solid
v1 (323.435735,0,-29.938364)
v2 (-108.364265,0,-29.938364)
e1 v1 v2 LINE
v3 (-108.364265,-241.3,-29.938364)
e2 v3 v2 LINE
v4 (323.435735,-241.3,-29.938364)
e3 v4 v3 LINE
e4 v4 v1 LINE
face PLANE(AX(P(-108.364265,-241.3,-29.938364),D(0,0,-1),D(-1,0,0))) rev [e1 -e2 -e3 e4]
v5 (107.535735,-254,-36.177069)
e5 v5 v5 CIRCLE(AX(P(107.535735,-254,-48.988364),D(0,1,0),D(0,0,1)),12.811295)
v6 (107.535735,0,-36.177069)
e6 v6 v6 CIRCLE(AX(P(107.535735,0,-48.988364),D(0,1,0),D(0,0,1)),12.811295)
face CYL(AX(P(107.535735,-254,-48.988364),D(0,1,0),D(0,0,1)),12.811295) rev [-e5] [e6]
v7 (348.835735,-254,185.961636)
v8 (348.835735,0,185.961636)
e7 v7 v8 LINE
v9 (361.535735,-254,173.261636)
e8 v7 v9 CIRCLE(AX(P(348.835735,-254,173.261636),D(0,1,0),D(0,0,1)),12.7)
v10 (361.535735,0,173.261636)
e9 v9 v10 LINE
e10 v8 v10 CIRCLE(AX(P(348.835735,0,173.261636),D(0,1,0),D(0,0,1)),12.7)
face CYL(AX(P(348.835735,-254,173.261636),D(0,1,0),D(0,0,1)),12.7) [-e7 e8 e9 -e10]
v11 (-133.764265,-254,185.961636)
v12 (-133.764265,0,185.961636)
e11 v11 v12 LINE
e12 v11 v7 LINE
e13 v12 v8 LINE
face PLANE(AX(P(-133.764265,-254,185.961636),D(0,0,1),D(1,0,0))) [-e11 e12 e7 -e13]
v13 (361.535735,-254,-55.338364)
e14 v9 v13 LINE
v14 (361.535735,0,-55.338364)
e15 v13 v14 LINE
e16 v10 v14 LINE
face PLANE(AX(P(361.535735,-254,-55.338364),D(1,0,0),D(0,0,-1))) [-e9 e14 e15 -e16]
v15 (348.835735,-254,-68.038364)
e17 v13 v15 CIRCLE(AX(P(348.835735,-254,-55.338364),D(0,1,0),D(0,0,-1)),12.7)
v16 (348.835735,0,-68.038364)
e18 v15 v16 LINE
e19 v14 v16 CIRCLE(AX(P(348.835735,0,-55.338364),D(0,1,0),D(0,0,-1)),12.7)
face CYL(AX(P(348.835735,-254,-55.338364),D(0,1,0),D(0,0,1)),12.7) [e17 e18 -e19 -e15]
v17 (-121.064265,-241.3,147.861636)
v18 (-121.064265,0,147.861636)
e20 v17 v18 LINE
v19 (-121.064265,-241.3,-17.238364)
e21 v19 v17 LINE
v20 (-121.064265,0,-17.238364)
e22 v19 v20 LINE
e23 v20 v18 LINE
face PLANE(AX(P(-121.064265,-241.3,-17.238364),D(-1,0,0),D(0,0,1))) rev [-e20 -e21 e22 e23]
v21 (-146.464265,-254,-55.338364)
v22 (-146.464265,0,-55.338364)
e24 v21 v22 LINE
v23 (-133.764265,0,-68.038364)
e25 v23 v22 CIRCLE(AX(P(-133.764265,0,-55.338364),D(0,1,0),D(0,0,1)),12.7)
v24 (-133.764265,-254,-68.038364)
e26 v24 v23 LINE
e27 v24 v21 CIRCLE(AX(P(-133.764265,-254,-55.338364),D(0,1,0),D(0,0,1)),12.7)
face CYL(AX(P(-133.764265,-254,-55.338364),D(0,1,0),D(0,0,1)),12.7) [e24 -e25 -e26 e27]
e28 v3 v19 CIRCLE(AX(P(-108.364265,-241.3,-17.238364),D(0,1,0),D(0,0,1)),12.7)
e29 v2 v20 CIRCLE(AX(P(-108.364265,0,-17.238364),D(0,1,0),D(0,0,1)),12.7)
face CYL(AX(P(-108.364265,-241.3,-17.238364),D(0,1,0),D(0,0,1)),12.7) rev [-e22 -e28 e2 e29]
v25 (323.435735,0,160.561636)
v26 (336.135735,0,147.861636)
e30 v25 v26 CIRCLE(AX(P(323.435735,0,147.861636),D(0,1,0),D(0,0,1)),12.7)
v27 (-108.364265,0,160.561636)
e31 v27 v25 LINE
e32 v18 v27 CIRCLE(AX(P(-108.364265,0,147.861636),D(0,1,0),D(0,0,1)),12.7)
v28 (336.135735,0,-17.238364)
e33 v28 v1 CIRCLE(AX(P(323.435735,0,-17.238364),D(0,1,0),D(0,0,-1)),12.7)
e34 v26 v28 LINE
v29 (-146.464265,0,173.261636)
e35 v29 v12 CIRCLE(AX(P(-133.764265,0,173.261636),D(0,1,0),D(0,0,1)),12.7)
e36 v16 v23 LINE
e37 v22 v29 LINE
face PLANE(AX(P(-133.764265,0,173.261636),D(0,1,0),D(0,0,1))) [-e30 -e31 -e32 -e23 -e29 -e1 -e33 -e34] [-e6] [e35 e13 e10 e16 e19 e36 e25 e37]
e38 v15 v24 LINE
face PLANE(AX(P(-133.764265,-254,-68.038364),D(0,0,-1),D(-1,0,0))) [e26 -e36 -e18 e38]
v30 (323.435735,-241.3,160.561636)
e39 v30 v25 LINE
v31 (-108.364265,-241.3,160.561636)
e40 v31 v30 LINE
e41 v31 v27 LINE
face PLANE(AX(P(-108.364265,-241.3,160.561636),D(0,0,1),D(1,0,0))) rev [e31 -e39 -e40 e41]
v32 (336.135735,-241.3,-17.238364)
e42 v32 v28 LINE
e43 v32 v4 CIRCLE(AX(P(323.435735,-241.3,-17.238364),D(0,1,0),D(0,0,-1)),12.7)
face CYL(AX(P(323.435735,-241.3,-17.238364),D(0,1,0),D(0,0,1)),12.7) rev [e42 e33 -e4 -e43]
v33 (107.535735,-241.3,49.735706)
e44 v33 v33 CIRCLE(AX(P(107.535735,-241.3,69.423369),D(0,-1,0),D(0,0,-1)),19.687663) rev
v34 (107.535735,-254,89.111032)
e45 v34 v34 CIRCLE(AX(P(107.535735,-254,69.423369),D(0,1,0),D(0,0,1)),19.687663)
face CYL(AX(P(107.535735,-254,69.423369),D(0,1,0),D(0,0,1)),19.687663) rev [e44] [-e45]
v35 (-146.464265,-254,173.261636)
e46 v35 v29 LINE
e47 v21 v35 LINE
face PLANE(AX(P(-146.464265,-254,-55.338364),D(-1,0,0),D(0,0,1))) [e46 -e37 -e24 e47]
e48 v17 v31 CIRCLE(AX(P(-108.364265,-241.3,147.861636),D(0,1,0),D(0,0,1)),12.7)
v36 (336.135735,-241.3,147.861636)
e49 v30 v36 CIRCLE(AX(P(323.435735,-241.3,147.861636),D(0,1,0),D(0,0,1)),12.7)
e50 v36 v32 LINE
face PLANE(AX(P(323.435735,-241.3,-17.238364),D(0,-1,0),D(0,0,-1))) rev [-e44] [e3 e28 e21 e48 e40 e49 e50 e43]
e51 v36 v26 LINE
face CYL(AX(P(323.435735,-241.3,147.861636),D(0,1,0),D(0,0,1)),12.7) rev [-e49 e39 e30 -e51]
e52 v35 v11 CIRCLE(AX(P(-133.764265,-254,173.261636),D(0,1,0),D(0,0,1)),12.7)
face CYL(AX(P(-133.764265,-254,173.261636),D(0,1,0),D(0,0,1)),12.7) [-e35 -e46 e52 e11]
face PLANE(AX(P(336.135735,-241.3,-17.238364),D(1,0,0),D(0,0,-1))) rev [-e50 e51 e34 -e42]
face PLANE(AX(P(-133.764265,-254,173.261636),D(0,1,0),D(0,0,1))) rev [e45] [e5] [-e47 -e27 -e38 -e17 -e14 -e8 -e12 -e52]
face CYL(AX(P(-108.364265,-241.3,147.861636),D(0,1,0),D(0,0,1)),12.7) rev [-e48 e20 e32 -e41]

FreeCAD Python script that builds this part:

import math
import FreeCAD as App
import Part
import Sketcher
Q = App.Units.Quantity

doc = App.newDocument("Part")
body = doc.addObject("PartDesign::Body", "Body")

sketch1 = body.newObject("Sketcher::SketchObject", "Sketch")
sketch1.AttachmentSupport = (doc.getObject("XZ_Plane"), [""])
sketch1.MapMode = "FlatFace"
sketch1.addGeometry(Part.LineSegment(App.Vector(349, -68, 0), App.Vector(-134, -68, 0)), False)
sketch1.addGeometry(Part.ArcOfCircle(Part.Circle(App.Vector(-134, -55, 0), App.Vector(0, 0, 1), 13), math.radians(180), math.radians(270)), False)
sketch1.addGeometry(Part.LineSegment(App.Vector(-146, -55, 0), App.Vector(-146, 173, 0)), False)
sketch1.addGeometry(Part.ArcOfCircle(Part.Circle(App.Vector(-134, 173, 0), App.Vector(0, 0, 1), 13), math.radians(90), math.radians(180)), False)
sketch1.addGeometry(Part.LineSegment(App.Vector(-134, 186, 0), App.Vector(349, 186, 0)), False)
sketch1.addGeometry(Part.ArcOfCircle(Part.Circle(App.Vector(349, 173, 0), App.Vector(0, 0, 1), 13), math.radians(0), math.radians(90)), False)
sketch1.addGeometry(Part.LineSegment(App.Vector(362, 173, 0), App.Vector(362, -55, 0)), False)
sketch1.addGeometry(Part.ArcOfCircle(Part.Circle(App.Vector(349, -55, 0), App.Vector(0, 0, 1), 13), math.radians(-90), math.radians(0)), False)
sketch1.addGeometry(Part.Circle(App.Vector(108, 69, 0), App.Vector(0, 0, 1), 20), False)
sketch1.addGeometry(Part.Circle(App.Vector(108, -49, 0), App.Vector(0, 0, 1), 13), False)
sketch1.addConstraint(Sketcher.Constraint("Tangent", 0, 2, 1, 2))
sketch1.addConstraint(Sketcher.Constraint("Tangent", 1, 1, 2, 1))
sketch1.addConstraint(Sketcher.Constraint("Tangent", 2, 2, 3, 2))
sketch1.addConstraint(Sketcher.Constraint("Tangent", 3, 1, 4, 1))
sketch1.addConstraint(Sketcher.Constraint("Tangent", 4, 2, 5, 2))
sketch1.addConstraint(Sketcher.Constraint("Tangent", 5, 1, 6, 1))
sketch1.addConstraint(Sketcher.Constraint("Tangent", 6, 2, 7, 2))
sketch1.addConstraint(Sketcher.Constraint("Tangent", 7, 1, 0, 1))
sketch1.addConstraint(Sketcher.Constraint("Horizontal", 0))
sketch1.addConstraint(Sketcher.Constraint("Vertical", 2))
sketch1.addConstraint(Sketcher.Constraint("Horizontal", 4))
sketch1.addConstraint(Sketcher.Constraint("Vertical", 6))
sketch1.addConstraint(Sketcher.Constraint("Equal", 1, 3))
sketch1.addConstraint(Sketcher.Constraint("Equal", 3, 5))
sketch1.addConstraint(Sketcher.Constraint("Equal", 5, 7))
sketch1.addConstraint(Sketcher.Constraint("Vertical", 8, 3, 9, 3))
sketch1.addConstraint(Sketcher.Constraint("Radius", 1, Q("0.5 in")))
sketch1.addConstraint(Sketcher.Constraint("DistanceX", 0, 2, 0, 1, Q("19 in")))
sketch1.addConstraint(Sketcher.Constraint("DistanceY", 2, 1, 2, 2, Q("9 in")))
sketch1.addConstraint(Sketcher.Constraint("DistanceX", 1, 1, 9, 3, Q("10 in")))
sketch1.addConstraint(Sketcher.Constraint("DistanceY", 1, 3, 9, 3, Q("0.25 in")))
sketch1.addConstraint(Sketcher.Constraint("Diameter", 9, 25.62259))
sketch1.addConstraint(Sketcher.Constraint("Diameter", 8, 39.375325))
sketch1.addConstraint(Sketcher.Constraint("DistanceY", -1, 1, 8, 3, 69.423369))
sketch1.addConstraint(Sketcher.Constraint("DistanceX", 1, 3, -1, 1, 133.764265))
sketch1.addConstraint(Sketcher.Constraint("DistanceY", 1, 3, -1, 1, 55.338364))
pad1 = body.newObject("PartDesign::Pad", "Pad")
pad1.Profile = sketch1
pad1.Length = Q("10 in")

sketch2 = body.newObject("Sketcher::SketchObject", "Sketch001")
sketch2.AttachmentSupport = (doc.getObject("XZ_Plane"), [""])
sketch2.MapMode = "FlatFace"
sketch2.addGeometry(Part.LineSegment(App.Vector(323, -30, 0), App.Vector(-108, -30, 0)), False)
sketch2.addGeometry(Part.ArcOfCircle(Part.Circle(App.Vector(-108, -17, 0), App.Vector(0, 0, 1), 13), math.radians(180), math.radians(270)), False)
sketch2.addGeometry(Part.LineSegment(App.Vector(-121, -17, 0), App.Vector(-121, 148, 0)), False)
sketch2.addGeometry(Part.ArcOfCircle(Part.Circle(App.Vector(-108, 148, 0), App.Vector(0, 0, 1), 13), math.radians(90), math.radians(180)), False)
sketch2.addGeometry(Part.LineSegment(App.Vector(-108, 161, 0), App.Vector(323, 161, 0)), False)
sketch2.addGeometry(Part.ArcOfCircle(Part.Circle(App.Vector(323, 148, 0), App.Vector(0, 0, 1), 13), math.radians(0), math.radians(90)), False)
sketch2.addGeometry(Part.LineSegment(App.Vector(336, 148, 0), App.Vector(336, -17, 0)), False)
sketch2.addGeometry(Part.ArcOfCircle(Part.Circle(App.Vector(323, -17, 0), App.Vector(0, 0, 1), 13), math.radians(-90), math.radians(0)), False)
sketch2.addConstraint(Sketcher.Constraint("Tangent", 0, 2, 1, 2))
sketch2.addConstraint(Sketcher.Constraint("Tangent", 1, 1, 2, 1))
sketch2.addConstraint(Sketcher.Constraint("Tangent", 2, 2, 3, 2))
sketch2.addConstraint(Sketcher.Constraint("Tangent", 3, 1, 4, 1))
sketch2.addConstraint(Sketcher.Constraint("Tangent", 4, 2, 5, 2))
sketch2.addConstraint(Sketcher.Constraint("Tangent", 5, 1, 6, 1))
sketch2.addConstraint(Sketcher.Constraint("Tangent", 6, 2, 7, 2))
sketch2.addConstraint(Sketcher.Constraint("Tangent", 7, 1, 0, 1))
sketch2.addConstraint(Sketcher.Constraint("Horizontal", 0))
sketch2.addConstraint(Sketcher.Constraint("Vertical", 2))
sketch2.addConstraint(Sketcher.Constraint("Horizontal", 4))
sketch2.addConstraint(Sketcher.Constraint("Vertical", 6))
sketch2.addConstraint(Sketcher.Constraint("Equal", 1, 3))
sketch2.addConstraint(Sketcher.Constraint("Equal", 3, 5))
sketch2.addConstraint(Sketcher.Constraint("Equal", 5, 7))
sketch2.addConstraint(Sketcher.Constraint("Radius", 1, Q("0.5 in")))
sketch2.addConstraint(Sketcher.Constraint("DistanceX", 0, 2, 0, 1, Q("17 in")))
sketch2.addConstraint(Sketcher.Constraint("DistanceY", 2, 1, 2, 2, Q("6.5 in")))
sketch2.addConstraint(Sketcher.Constraint("DistanceX", 1, 3, -1, 1, 108.364265))
sketch2.addConstraint(Sketcher.Constraint("DistanceY", 1, 3, -1, 1, 17.238364))
pocket1 = body.newObject("PartDesign::Pocket", "Pocket")
pocket1.Profile = sketch2
pocket1.Length = Q("9.5 in")
pocket1.Reversed = True

doc.recompute()
